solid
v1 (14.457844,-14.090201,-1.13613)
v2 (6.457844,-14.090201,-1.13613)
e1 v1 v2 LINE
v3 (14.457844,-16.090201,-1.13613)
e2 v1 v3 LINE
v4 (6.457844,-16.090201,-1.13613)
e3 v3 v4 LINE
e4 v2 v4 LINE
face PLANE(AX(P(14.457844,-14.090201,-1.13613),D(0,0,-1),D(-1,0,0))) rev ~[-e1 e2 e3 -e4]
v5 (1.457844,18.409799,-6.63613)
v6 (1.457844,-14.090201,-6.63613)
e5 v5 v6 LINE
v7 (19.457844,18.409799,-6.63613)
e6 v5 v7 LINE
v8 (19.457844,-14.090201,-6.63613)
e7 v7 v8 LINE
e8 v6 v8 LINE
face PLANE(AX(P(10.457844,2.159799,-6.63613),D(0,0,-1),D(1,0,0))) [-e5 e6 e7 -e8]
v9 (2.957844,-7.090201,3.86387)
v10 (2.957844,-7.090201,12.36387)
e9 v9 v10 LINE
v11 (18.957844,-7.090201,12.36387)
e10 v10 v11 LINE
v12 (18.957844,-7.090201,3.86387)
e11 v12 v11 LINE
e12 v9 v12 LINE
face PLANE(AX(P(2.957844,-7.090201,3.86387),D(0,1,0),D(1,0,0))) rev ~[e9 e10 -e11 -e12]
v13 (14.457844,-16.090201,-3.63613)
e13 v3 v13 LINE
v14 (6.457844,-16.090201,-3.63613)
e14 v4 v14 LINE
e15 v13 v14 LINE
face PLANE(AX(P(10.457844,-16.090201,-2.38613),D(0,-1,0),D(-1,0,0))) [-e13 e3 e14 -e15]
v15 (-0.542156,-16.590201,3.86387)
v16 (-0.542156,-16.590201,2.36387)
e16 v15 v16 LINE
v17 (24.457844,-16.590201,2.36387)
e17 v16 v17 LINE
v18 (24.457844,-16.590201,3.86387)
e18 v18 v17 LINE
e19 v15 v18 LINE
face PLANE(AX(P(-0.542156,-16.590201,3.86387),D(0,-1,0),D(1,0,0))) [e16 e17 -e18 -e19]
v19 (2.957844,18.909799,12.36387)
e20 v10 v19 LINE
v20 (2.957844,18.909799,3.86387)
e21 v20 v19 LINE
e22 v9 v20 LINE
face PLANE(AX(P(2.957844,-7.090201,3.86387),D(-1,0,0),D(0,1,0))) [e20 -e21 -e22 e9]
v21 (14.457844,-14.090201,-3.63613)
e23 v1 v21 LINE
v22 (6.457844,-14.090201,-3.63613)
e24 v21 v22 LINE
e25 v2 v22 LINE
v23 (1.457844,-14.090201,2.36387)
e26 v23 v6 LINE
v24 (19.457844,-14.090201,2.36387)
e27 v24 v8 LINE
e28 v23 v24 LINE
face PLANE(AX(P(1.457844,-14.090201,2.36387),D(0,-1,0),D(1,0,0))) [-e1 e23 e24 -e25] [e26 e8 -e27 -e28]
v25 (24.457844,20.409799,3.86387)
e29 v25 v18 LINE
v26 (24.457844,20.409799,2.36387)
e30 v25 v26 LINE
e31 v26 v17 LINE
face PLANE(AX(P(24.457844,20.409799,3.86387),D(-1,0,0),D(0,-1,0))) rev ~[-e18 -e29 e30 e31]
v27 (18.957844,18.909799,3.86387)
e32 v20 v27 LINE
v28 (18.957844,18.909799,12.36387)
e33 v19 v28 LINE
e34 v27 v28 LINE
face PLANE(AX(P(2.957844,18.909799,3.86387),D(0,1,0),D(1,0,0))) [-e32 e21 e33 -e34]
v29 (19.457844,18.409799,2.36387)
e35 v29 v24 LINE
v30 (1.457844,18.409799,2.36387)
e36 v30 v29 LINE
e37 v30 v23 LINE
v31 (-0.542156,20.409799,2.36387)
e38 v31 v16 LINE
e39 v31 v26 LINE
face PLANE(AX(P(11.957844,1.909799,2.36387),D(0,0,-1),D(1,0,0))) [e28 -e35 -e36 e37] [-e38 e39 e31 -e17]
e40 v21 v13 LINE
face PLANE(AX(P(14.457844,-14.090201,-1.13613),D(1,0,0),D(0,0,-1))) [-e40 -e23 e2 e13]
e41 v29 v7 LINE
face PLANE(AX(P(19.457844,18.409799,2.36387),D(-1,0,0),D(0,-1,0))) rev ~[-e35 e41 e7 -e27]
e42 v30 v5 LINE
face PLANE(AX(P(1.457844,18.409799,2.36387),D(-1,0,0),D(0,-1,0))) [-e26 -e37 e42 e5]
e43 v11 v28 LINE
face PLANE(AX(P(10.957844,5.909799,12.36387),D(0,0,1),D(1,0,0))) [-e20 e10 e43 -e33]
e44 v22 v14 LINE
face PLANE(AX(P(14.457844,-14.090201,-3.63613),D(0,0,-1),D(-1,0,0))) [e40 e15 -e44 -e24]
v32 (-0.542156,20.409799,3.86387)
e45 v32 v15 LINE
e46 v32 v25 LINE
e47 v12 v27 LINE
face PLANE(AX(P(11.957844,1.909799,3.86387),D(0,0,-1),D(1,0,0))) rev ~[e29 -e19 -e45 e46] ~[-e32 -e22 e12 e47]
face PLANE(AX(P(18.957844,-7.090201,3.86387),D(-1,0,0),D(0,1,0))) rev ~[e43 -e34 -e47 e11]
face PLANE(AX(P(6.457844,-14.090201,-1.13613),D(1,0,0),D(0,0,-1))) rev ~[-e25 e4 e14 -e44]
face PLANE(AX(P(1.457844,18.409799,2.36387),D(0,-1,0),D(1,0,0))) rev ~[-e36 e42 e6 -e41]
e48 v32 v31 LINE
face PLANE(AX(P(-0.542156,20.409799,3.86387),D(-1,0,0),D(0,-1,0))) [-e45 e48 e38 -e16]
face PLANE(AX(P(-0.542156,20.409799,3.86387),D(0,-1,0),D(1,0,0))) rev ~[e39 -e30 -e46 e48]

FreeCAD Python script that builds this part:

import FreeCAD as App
import Part
import Sketcher

doc = App.newDocument("Part")
params = doc.addObject("Spreadsheet::Sheet", "Params")
for row, (alias, value) in enumerate([
    ("sketch1_width", "25 mm"),
    ("sketch1_height", "37 mm"),
    ("pad1_length", "1.5 mm"),
    ("sketch2_width", "16 mm"),
    ("sketch2_height", "26 mm"),
    ("pad2_length", "8.5 mm"),
    ("sketch3_width", "18 mm"),
    ("sketch3_height", "32.5 mm"),
    ("pad3_length", "9 mm"),
    ("sketch4_height", "8 mm"),
    ("sketch4_width", "2.5 mm"),
    ("pad4_length", "2 mm"),
], start=1):
    params.set(f"A{row}", alias)
    params.set(f"B{row}", "=" + value)
    params.setAlias(f"B{row}", alias)

body = doc.addObject("PartDesign::Body", "Body")

# Sketch on YZ plane
sketch1 = body.newObject("Sketcher::SketchObject", "Sketch")
sketch1.AttachmentSupport = (doc.getObject("YZ_Plane"), [""])
sketch1.MapMode = "FlatFace"
sketch1.addGeometry([
    Part.LineSegment(App.Vector(-8, 17, 0), App.Vector(-8, -20, 0)),
    Part.LineSegment(App.Vector(-8, -20, 0), App.Vector(17, -20, 0)),
    Part.LineSegment(App.Vector(17, -20, 0), App.Vector(17, 17, 0)),
    Part.LineSegment(App.Vector(17, 17, 0), App.Vector(-8, 17, 0)),
], False)
sketch1.addConstraint([
    Sketcher.Constraint("Coincident", 0, 2, 1, 1),
    Sketcher.Constraint("Coincident", 1, 2, 2, 1),
    Sketcher.Constraint("Coincident", 2, 2, 3, 1),
    Sketcher.Constraint("Coincident", 3, 2, 0, 1),
    Sketcher.Constraint("Vertical", 0),
    Sketcher.Constraint("Horizontal", 1),
    Sketcher.Constraint("Vertical", 2),
    Sketcher.Constraint("Horizontal", 3),
    Sketcher.Constraint("DistanceX", 1, 1, 1, 2, 25.0),
    Sketcher.Constraint("DistanceY", 0, 2, 0, 1, 37.0),
    Sketcher.Constraint("DistanceY", 0, 2, -1, 1, 20.409899),
    Sketcher.Constraint("DistanceX", 0, 2, -1, 1, 8.226126),
])
sketch1.setExpression("Constraints[8]", "Params.sketch1_width")
sketch1.setExpression("Constraints[9]", "Params.sketch1_height")
pad1 = body.newObject("PartDesign::Pad", "Pad")
pad1.Profile = sketch1
pad1.setExpression("Length", "Params.pad1_length")

# Sketch on YZ plane
sketch2 = body.newObject("Sketcher::SketchObject", "Sketch001")
sketch2.AttachmentSupport = (doc.getObject("YZ_Plane"), [""])
sketch2.MapMode = "FlatFace"
sketch2.addGeometry([
    Part.LineSegment(App.Vector(-5, -19, 0), App.Vector(-5, 7, 0)),
    Part.LineSegment(App.Vector(-5, 7, 0), App.Vector(11, 7, 0)),
    Part.LineSegment(App.Vector(11, 7, 0), App.Vector(11, -19, 0)),
    Part.LineSegment(App.Vector(11, -19, 0), App.Vector(-5, -19, 0)),
], False)
sketch2.addConstraint([
    Sketcher.Constraint("Coincident", 0, 2, 1, 1),
    Sketcher.Constraint("Coincident", 1, 2, 2, 1),
    Sketcher.Constraint("Coincident", 2, 2, 3, 1),
    Sketcher.Constraint("Coincident", 3, 2, 0, 1),
    Sketcher.Constraint("Vertical", 0),
    Sketcher.Constraint("Horizontal", 1),
    Sketcher.Constraint("Vertical", 2),
    Sketcher.Constraint("Horizontal", 3),
    Sketcher.Constraint("DistanceX", 1, 1, 1, 2, 16.0),
    Sketcher.Constraint("DistanceY", 0, 1, 0, 2, 26.0),
    Sketcher.Constraint("DistanceY", -1, 1, 0, 2, 7.090101),
    Sketcher.Constraint("DistanceX", 0, 2, -1, 1, 4.726126),
])
sketch2.setExpression("Constraints[8]", "Params.sketch2_width")
sketch2.setExpression("Constraints[9]", "Params.sketch2_height")
pad2 = body.newObject("PartDesign::Pad", "Pad001")
pad2.Profile = sketch2
pad2.setExpression("Length", "Params.pad2_length")
pad2.Reversed = True

# Sketch on YZ plane
sketch3 = body.newObject("Sketcher::SketchObject", "Sketch002")
sketch3.AttachmentSupport = (doc.getObject("YZ_Plane"), [""])
sketch3.MapMode = "FlatFace"
sketch3.AttachmentOffset = App.Placement(App.Vector(0, 0, 1.5), App.Rotation())
sketch3.addGeometry([
    Part.LineSegment(App.Vector(-6, 14, 0), App.Vector(-6, -18, 0)),
    Part.LineSegment(App.Vector(-6, -18, 0), App.Vector(12, -18, 0)),
    Part.LineSegment(App.Vector(12, -18, 0), App.Vector(12, 14, 0)),
    Part.LineSegment(App.Vector(12, 14, 0), App.Vector(-6, 14, 0)),
], False)
sketch3.addConstraint([
    Sketcher.Constraint("Coincident", 0, 2, 1, 1),
    Sketcher.Constraint("Coincident", 1, 2, 2, 1),
    Sketcher.Constraint("Coincident", 2, 2, 3, 1),
    Sketcher.Constraint("Coincident", 3, 2, 0, 1),
    Sketcher.Constraint("Vertical", 0),
    Sketcher.Constraint("Horizontal", 1),
    Sketcher.Constraint("Vertical", 2),
    Sketcher.Constraint("Horizontal", 3),
    Sketcher.Constraint("DistanceX", 1, 1, 1, 2, 18.0),
    Sketcher.Constraint("DistanceY", 0, 2, 0, 1, 32.5),
    Sketcher.Constraint("DistanceY", 0, 2, -1, 1, 18.409899),
    Sketcher.Constraint("DistanceX", 0, 2, -1, 1, 6.226126),
])
sketch3.setExpression("Constraints[8]", "Params.sketch3_width")
sketch3.setExpression("Constraints[9]", "Params.sketch3_height")
pad3 = body.newObject("PartDesign::Pad", "Pad002")
pad3.Profile = sketch3
pad3.setExpression("Length", "Params.pad3_length")

# Sketch on XY plane
sketch4 = body.newObject("Sketcher::SketchObject", "Sketch003")
sketch4.AttachmentSupport = (doc.getObject("XY_Plane"), [""])
sketch4.MapMode = "FlatFace"
sketch4.AttachmentOffset = App.Placement(App.Vector(0, 0, 14.090101), App.Rotation())
sketch4.addGeometry([
    Part.LineSegment(App.Vector(7.5, 6.8, 0), App.Vector(5, 6.8, 0)),
    Part.LineSegment(App.Vector(5, 6.8, 0), App.Vector(5, -1.2, 0)),
    Part.LineSegment(App.Vector(5, -1.2, 0), App.Vector(7.5, -1.2, 0)),
    Part.LineSegment(App.Vector(7.5, -1.2, 0), App.Vector(7.5, 6.8, 0)),
], False)
sketch4.addConstraint([
    Sketcher.Constraint("Coincident", 0, 2, 1, 1),
    Sketcher.Constraint("Coincident", 1, 2, 2, 1),
    Sketcher.Constraint("Coincident", 2, 2, 3, 1),
    Sketcher.Constraint("Coincident", 3, 2, 0, 1),
    Sketcher.Constraint("Horizontal", 0),
    Sketcher.Constraint("Vertical", 1),
    Sketcher.Constraint("Horizontal", 2),
    Sketcher.Constraint("Vertical", 3),
    Sketcher.Constraint("DistanceY", 1, 2, 1, 1, 8.0),
    Sketcher.Constraint("DistanceX", 0, 2, 0, 1, 2.5),
    Sketcher.Constraint("DistanceX", -1, 1, 0, 2, 5.0),
    Sketcher.Constraint("DistanceY", -1, 1, 0, 2, 6.773874),
])
sketch4.setExpression("Constraints[8]", "Params.sketch4_height")
sketch4.setExpression("Constraints[9]", "Params.sketch4_width")
pad4 = body.newObject("PartDesign::Pad", "Pad003")
pad4.Profile = sketch4
pad4.setExpression("Length", "Params.pad4_length")
body2 = doc.addObject("PartDesign::Body", "Body001")
doc.recompute()

body.Placement = App.Placement(App.Vector(0, 0, 0), App.Rotation(App.Vector(0, 1, 0), 90))
boolean = body2.newObject("PartDesign::Boolean", "Boolean")
boolean.Type = "Fuse"
boolean.addObjects([body])
body3 = doc.addObject("PartDesign::Body", "Body002")
doc.recompute()

body2.Placement = App.Placement(App.Vector(7.68397, -0.0001, 3.86387), App.Rotation(App.Vector(0, 0, 1), 270))
boolean2 = body3.newObject("PartDesign::Boolean", "Boolean001")
boolean2.Type = "Fuse"
boolean2.addObjects([body2])

doc.recompute()
